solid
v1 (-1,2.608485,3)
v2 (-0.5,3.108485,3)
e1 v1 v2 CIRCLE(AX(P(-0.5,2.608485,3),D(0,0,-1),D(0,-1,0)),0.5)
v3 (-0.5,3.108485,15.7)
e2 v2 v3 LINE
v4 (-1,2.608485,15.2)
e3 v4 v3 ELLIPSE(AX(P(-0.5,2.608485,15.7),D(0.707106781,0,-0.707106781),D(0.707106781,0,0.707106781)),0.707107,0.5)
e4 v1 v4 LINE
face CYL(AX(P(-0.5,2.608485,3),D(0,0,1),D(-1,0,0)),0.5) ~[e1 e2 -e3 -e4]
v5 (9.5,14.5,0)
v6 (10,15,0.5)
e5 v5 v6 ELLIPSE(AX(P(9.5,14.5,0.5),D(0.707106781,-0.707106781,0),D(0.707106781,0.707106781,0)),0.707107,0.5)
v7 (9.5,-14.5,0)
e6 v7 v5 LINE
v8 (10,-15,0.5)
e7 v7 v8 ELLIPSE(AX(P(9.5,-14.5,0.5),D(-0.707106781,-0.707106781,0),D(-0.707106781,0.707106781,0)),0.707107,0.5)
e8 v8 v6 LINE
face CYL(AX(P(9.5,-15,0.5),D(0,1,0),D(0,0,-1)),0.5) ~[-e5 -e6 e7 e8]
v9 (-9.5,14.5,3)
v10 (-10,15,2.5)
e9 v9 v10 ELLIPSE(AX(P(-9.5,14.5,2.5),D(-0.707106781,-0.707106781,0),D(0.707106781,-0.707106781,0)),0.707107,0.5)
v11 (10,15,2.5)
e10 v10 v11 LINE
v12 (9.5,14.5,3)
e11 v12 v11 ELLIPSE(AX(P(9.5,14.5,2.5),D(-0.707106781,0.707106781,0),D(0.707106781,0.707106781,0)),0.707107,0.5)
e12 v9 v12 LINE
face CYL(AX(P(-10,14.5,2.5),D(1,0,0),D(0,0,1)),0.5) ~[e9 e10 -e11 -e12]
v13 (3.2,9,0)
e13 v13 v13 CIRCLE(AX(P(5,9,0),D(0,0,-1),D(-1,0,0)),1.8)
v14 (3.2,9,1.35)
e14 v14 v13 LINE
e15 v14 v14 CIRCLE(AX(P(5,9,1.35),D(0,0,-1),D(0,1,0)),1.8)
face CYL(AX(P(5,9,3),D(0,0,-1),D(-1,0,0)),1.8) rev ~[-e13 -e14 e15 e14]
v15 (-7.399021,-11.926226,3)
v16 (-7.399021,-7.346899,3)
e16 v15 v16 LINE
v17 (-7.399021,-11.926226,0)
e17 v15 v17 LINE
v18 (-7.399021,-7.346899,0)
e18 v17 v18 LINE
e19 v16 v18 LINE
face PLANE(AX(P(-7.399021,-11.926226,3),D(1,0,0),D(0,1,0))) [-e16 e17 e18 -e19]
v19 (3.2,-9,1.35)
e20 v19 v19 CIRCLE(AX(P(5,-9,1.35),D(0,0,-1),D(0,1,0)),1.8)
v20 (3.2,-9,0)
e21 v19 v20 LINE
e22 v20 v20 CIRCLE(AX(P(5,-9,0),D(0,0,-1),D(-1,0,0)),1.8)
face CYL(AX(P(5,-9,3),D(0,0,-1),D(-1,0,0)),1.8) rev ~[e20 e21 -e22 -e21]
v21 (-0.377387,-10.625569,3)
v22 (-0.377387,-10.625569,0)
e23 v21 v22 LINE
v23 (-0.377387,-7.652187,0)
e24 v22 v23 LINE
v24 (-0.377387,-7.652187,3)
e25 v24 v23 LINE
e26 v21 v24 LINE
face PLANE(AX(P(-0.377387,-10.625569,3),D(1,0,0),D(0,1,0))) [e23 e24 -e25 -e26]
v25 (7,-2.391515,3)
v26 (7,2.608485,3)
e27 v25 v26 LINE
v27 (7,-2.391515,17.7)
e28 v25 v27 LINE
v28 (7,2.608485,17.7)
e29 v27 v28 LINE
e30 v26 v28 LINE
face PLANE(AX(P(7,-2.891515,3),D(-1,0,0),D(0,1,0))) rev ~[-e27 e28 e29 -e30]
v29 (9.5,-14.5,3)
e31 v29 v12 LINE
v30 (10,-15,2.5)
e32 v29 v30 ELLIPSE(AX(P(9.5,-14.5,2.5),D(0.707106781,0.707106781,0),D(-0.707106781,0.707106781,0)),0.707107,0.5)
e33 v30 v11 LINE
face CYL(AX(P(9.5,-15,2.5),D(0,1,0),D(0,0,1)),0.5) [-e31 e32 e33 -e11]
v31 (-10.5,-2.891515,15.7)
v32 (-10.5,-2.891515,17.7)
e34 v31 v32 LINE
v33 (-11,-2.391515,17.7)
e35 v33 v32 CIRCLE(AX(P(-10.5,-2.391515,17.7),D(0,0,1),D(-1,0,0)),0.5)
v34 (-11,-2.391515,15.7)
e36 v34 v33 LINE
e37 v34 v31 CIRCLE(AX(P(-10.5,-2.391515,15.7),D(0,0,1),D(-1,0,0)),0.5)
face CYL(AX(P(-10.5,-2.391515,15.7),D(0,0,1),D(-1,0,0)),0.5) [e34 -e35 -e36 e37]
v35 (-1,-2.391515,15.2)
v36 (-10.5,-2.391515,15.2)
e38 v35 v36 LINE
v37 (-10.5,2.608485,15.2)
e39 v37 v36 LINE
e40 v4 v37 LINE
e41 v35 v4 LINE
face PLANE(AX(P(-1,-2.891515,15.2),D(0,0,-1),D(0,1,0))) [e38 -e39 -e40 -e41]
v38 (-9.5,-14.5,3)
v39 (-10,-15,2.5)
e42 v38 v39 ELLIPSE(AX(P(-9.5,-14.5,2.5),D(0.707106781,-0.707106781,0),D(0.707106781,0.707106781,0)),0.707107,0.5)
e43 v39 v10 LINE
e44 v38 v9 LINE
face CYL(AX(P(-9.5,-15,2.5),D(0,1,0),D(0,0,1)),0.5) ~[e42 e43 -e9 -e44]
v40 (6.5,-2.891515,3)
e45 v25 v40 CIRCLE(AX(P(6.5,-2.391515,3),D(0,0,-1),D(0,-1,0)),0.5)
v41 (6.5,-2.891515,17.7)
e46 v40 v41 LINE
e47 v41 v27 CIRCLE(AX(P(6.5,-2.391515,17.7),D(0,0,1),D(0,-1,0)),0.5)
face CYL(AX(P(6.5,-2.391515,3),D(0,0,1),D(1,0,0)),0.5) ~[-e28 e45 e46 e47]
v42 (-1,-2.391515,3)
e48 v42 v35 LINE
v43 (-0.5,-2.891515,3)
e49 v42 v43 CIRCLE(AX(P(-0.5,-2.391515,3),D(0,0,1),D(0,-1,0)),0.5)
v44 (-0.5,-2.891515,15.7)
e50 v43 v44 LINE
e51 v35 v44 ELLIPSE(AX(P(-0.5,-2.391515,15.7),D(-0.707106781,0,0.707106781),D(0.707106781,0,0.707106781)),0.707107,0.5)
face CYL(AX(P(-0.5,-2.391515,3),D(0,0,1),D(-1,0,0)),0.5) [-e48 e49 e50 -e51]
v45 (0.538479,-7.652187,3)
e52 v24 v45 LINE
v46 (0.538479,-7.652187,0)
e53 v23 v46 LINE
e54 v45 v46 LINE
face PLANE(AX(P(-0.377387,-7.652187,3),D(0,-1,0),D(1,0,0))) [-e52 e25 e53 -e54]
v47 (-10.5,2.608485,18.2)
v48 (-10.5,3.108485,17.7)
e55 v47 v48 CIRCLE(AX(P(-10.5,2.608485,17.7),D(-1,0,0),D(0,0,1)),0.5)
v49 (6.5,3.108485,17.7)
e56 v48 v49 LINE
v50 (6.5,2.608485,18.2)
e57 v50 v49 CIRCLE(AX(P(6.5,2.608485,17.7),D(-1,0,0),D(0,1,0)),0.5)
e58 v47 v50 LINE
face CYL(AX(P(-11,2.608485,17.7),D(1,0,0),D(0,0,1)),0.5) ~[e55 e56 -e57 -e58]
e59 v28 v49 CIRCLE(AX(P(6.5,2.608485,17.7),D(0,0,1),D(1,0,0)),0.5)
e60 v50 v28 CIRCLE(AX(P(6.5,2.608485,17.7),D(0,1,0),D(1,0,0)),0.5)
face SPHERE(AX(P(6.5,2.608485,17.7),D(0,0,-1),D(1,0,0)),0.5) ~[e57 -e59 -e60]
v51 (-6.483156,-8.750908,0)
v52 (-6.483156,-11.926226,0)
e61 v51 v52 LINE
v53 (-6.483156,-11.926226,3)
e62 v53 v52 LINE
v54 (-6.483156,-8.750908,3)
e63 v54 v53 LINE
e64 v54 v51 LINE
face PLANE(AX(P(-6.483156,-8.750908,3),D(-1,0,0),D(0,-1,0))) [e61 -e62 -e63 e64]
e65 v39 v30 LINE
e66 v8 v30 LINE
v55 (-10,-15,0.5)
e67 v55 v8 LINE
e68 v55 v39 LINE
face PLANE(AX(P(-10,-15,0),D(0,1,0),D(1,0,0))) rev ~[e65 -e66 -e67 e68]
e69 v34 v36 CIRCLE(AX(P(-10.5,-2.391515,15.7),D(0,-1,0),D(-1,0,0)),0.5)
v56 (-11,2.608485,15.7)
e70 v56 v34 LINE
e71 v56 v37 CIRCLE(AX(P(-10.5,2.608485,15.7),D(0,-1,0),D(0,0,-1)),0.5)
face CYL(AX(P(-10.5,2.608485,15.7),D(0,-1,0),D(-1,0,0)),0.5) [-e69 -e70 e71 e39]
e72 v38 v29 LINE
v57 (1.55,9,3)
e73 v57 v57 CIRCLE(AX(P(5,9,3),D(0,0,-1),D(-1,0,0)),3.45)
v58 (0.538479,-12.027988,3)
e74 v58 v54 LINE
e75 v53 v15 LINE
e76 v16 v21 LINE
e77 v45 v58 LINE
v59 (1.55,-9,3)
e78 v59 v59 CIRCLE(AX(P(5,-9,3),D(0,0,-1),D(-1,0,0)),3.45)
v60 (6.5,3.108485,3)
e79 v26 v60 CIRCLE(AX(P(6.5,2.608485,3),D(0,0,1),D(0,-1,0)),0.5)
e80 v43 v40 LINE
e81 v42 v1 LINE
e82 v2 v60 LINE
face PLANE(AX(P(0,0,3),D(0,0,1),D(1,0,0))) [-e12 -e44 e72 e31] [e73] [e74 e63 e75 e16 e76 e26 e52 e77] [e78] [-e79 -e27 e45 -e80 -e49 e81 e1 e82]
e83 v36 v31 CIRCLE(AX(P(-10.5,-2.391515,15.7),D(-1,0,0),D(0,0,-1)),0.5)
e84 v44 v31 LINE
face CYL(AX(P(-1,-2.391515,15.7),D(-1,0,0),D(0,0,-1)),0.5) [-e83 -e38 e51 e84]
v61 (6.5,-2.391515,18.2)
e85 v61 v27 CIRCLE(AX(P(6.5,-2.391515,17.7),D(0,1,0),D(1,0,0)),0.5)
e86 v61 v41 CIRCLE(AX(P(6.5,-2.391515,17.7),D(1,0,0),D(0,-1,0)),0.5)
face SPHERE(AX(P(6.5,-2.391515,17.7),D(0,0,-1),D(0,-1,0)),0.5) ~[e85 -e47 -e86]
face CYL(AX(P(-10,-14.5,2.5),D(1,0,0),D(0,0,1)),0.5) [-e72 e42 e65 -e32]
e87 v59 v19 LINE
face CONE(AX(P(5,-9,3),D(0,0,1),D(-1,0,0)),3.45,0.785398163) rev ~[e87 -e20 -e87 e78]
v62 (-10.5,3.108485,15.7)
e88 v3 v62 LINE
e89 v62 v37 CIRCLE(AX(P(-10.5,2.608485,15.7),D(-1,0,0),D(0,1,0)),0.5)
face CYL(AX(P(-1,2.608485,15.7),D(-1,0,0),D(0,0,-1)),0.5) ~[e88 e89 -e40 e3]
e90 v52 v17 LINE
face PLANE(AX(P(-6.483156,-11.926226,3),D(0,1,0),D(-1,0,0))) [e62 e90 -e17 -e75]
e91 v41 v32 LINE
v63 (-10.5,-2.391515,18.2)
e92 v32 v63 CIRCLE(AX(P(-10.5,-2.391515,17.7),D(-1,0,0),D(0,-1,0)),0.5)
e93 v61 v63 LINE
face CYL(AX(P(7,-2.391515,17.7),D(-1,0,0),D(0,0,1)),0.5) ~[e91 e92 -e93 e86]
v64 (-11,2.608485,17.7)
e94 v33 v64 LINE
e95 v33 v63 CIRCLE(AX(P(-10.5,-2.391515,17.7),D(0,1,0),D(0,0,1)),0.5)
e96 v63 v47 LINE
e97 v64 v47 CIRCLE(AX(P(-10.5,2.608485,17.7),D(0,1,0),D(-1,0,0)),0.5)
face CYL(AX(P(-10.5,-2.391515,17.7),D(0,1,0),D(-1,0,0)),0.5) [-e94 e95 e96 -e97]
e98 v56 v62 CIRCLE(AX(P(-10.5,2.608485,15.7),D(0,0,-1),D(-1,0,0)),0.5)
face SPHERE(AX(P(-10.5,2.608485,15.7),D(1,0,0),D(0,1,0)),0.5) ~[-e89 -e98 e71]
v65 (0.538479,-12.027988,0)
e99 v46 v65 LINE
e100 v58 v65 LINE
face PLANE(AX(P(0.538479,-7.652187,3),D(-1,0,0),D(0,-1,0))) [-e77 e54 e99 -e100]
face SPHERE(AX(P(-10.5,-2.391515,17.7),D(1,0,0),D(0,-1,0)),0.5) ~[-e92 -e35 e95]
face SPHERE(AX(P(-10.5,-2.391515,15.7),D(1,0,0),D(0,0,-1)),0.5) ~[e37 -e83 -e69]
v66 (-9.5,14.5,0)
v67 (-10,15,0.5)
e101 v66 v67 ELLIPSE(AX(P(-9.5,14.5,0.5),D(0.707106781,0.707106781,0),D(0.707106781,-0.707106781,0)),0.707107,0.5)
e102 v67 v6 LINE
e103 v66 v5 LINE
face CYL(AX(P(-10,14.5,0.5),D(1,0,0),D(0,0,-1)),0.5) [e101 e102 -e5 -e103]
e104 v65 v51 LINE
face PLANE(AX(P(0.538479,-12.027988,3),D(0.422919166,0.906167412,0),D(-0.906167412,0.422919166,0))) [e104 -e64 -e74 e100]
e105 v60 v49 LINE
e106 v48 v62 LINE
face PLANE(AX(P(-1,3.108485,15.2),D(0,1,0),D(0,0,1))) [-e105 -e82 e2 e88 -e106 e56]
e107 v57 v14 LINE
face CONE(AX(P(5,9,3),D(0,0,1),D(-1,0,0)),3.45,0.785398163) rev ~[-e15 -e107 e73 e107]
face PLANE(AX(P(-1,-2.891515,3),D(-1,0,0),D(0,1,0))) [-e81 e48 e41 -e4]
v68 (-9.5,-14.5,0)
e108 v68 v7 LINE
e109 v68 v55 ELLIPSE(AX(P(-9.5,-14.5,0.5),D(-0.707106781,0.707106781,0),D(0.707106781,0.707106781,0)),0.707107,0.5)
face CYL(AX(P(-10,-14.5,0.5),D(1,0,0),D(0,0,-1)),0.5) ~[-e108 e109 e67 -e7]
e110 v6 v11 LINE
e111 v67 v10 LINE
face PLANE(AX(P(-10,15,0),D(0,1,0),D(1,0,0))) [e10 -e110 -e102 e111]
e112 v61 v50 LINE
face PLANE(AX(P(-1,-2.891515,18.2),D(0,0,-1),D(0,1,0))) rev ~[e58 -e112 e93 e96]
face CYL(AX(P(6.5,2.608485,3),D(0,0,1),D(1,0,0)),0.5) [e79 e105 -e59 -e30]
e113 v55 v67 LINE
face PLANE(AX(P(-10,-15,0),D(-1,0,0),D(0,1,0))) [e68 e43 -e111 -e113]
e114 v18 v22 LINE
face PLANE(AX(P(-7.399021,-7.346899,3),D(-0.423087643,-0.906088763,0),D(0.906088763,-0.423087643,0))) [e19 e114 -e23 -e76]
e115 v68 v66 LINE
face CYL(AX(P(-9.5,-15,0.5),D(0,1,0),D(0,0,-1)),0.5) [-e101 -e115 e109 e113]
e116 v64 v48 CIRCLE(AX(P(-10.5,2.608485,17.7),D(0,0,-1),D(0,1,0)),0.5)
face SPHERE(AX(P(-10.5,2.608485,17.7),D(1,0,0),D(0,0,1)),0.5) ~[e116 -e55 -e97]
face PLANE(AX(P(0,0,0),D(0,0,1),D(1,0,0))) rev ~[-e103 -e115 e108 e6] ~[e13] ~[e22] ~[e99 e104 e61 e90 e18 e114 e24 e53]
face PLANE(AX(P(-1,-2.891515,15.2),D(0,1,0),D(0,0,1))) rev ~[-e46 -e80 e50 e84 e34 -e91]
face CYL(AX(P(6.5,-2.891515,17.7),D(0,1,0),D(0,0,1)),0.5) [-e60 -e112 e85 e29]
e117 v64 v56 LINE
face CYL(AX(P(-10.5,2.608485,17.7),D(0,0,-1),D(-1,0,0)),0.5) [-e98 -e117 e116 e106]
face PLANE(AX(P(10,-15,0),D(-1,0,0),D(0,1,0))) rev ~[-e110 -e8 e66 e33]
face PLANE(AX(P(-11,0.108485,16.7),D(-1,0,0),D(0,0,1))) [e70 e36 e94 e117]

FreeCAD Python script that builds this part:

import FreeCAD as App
import Part
import Sketcher
Q = App.Units.Quantity


def edges_at(feature, points):
    """Names of the edges that pass closest to the given points."""
    edges = feature.Shape.Edges
    near = lambda p: min(range(len(edges)), key=lambda i: edges[i].distToShape(Part.Vertex(*p))[0])
    return sorted({f"Edge{near(p) + 1}" for p in points})


def add_polygon(sketch, points):
    """Adds a closed chain of lines whose ends are joined by coincident constraints."""
    first, n = sketch.GeometryCount, len(points)
    for a, b in zip(points, points[1:] + points[:1]):
        sketch.addGeometry(Part.LineSegment(App.Vector(*a, 0), App.Vector(*b, 0)), False)
    for i in range(n):
        sketch.addConstraint(Sketcher.Constraint("Coincident", first + i, 2, first + (i + 1) % n, 1))

doc = App.newDocument("Part")
params = doc.addObject("Spreadsheet::Sheet", "Params")
for row, (alias, value) in enumerate([
    ("sketch1_width", "20 mm"),
    ("sketch1_height", "30 mm"),
    ("pad1_length", "3 mm"),
    ("sketch2_diameter", "3.6 mm"),
    ("hole_diameter", "3.6 mm"),
    ("hole_depth", "20 mm"),
    ("hole_csink_diameter", "6.9 mm"),
    ("sketch3_width", "8 mm"),
    ("sketch3_height", "6 mm"),
    ("pad2_length", "15.2 mm"),
    ("sketch4_width", "6 mm"),
    ("sketch4_height", "3 mm"),
    ("pad3_length", "10 mm"),
    ("fillet_radius", "0.5 mm"),
    ("fillet2_radius", "0.5 mm"),
], start=1):
    params.set(f"A{row}", alias)
    params.set(f"B{row}", "=" + value)
    params.setAlias(f"B{row}", alias)

body = doc.addObject("PartDesign::Body", "Body")

# Sketch on XY plane
sketch1 = body.newObject("Sketcher::SketchObject", "Sketch")
sketch1.AttachmentSupport = (doc.getObject("XY_Plane"), [""])
sketch1.MapMode = "FlatFace"
add_polygon(sketch1, [(-10, 15), (-10, -15), (10, -15), (10, 15)])  # lines 0-3
sketch1.addConstraint(Sketcher.Constraint("Vertical", 0))
sketch1.addConstraint(Sketcher.Constraint("Horizontal", 1))
sketch1.addConstraint(Sketcher.Constraint("Vertical", 2))
sketch1.addConstraint(Sketcher.Constraint("Horizontal", 3))
sketch1.addConstraint(Sketcher.Constraint("Symmetric", 0, 2, 2, 2, -1, 1))
sketch1.addConstraint(Sketcher.Constraint("DistanceX", 1, 1, 1, 2, Q("20 mm")))
sketch1.addConstraint(Sketcher.Constraint("DistanceY", 0, 2, 0, 1, Q("30 mm")))
sketch1.setExpression("Constraints[9]", "Params.sketch1_width")
sketch1.setExpression("Constraints[10]", "Params.sketch1_height")
pad1 = body.newObject("PartDesign::Pad", "Pad")
pad1.Profile = sketch1
pad1.setExpression("Length", "Params.pad1_length")

# Sketch on XY plane
sketch2 = body.newObject("Sketcher::SketchObject", "Sketch001")
sketch2.AttachmentSupport = (doc.getObject("XY_Plane"), [""])
sketch2.MapMode = "FlatFace"
sketch2.AttachmentOffset = App.Placement(App.Vector(0, 0, 3), App.Rotation())
sketch2.addGeometry(Part.Circle(App.Vector(5, 9, 0), App.Vector(0, 0, 1), 1.8), False)
sketch2.addGeometry(Part.Circle(App.Vector(5, -9, 0), App.Vector(0, 0, 1), 1.8), False)
sketch2.addConstraint(Sketcher.Constraint("Equal", 0, 1))
sketch2.addConstraint(Sketcher.Constraint("Symmetric", 0, 3, 1, 3, -1))
sketch2.addConstraint(Sketcher.Constraint("Diameter", 0, Q("3.6 mm")))
sketch2.addConstraint(Sketcher.Constraint("DistanceX", -1, 1, 0, 3, Q("5 mm")))
sketch2.addConstraint(Sketcher.Constraint("DistanceY", -1, 1, 0, 3, Q("9 mm")))
sketch2.setExpression("Constraints[2]", "Params.sketch2_diameter")
doc.recompute()
hole = body.newObject("PartDesign::Hole", "Hole")
hole.Profile = sketch2
hole.ThreadType = "None"
hole.setExpression("Diameter", "Params.hole_diameter")
hole.DepthType = "Dimension"
hole.setExpression("Depth", "Params.hole_depth")
hole.DrillPoint = "Angled"
hole.DrillPointAngle = 118
hole.HoleCutType = "Countersink"
hole.setExpression("HoleCutDiameter", "Params.hole_csink_diameter")
hole.HoleCutCountersinkAngle = 90

# Sketch on XY plane
sketch3 = body.newObject("Sketcher::SketchObject", "Sketch002")
sketch3.AttachmentSupport = (doc.getObject("XY_Plane"), [""])
sketch3.MapMode = "FlatFace"
sketch3.AttachmentOffset = App.Placement(App.Vector(0, 0, 3), App.Rotation())
add_polygon(sketch3, [(-1, 3.108485), (-1, -2.891515), (7, -2.891515), (7, 3.108485)])  # lines 0-3
sketch3.addConstraint(Sketcher.Constraint("Vertical", 0))
sketch3.addConstraint(Sketcher.Constraint("Horizontal", 1))
sketch3.addConstraint(Sketcher.Constraint("Vertical", 2))
sketch3.addConstraint(Sketcher.Constraint("Horizontal", 3))
sketch3.addConstraint(Sketcher.Constraint("DistanceX", 1, 1, 1, 2, Q("8 mm")))
sketch3.addConstraint(Sketcher.Constraint("DistanceY", 0, 2, 0, 1, Q("6 mm")))
sketch3.addConstraint(Sketcher.Constraint("DistanceX", 0, 2, -1, 1, Q("1 mm")))
sketch3.addConstraint(Sketcher.Constraint("DistanceY", 0, 2, -1, 1, Q("2.891515 mm")))
sketch3.setExpression("Constraints[8]", "Params.sketch3_width")
sketch3.setExpression("Constraints[9]", "Params.sketch3_height")
pad2 = body.newObject("PartDesign::Pad", "Pad001")
pad2.Profile = sketch3
pad2.setExpression("Length", "Params.pad2_length")

# Sketch on YZ plane
sketch4 = body.newObject("Sketcher::SketchObject", "Sketch003")
sketch4.AttachmentSupport = (doc.getObject("YZ_Plane"), [""])
sketch4.MapMode = "FlatFace"
sketch4.AttachmentOffset = App.Placement(App.Vector(0, 0, -1), App.Rotation())
add_polygon(sketch4, [(3.108485, 15.2), (-2.891515, 15.2), (-2.891515, 18.2), (3.108485, 18.2)])  # lines 0-3
sketch4.addConstraint(Sketcher.Constraint("Horizontal", 0))
sketch4.addConstraint(Sketcher.Constraint("Vertical", 1))
sketch4.addConstraint(Sketcher.Constraint("Horizontal", 2))
sketch4.addConstraint(Sketcher.Constraint("Vertical", 3))
sketch4.addConstraint(Sketcher.Constraint("DistanceX", 0, 2, 0, 1, Q("6 mm")))
sketch4.addConstraint(Sketcher.Constraint("DistanceY", 1, 1, 1, 2, Q("3 mm")))
sketch4.addConstraint(Sketcher.Constraint("DistanceY", -1, 1, 0, 2, Q("15.2 mm")))
sketch4.addConstraint(Sketcher.Constraint("DistanceX", 0, 2, -1, 1, Q("2.891515 mm")))
sketch4.setExpression("Constraints[8]", "Params.sketch4_width")
sketch4.setExpression("Constraints[9]", "Params.sketch4_height")
pad3 = body.newObject("PartDesign::Pad", "Pad002")
pad3.Profile = sketch4
pad3.setExpression("Length", "Params.pad3_length")
pad3.Reversed = True
doc.recompute()

fillet = body.newObject("PartDesign::Fillet", "Fillet")
fillet.Base = (pad3, edges_at(pad3, [
    (10, 0, 3),
    (0, 15, 3),
    (7, -2.892, 10.6),
    (7, 3.108, 10.6),
    (-2, -2.892, 18.2),
    (7, 0.108, 18.2),
    (-2, 3.108, 18.2),
    (-1, 3.108, 9.1),
    (-10, 0, 3),
    (-1, -2.892, 9.1),
    (-6, 3.108, 15.2),
    (-6, -2.892, 15.2),
    (0, 15, 0),
    (10, 0, 0),
    (0, -15, 0),
    (-10, 0, 0),
    (0, -15, 3),
]))
fillet.setExpression("Radius", "Params.fillet_radius")

# Sketch on XY plane
sketch5 = body.newObject("Sketcher::SketchObject", "Sketch004")
sketch5.AttachmentSupport = (doc.getObject("XY_Plane"), [""])
sketch5.MapMode = "FlatFace"
sketch5.AttachmentOffset = App.Placement(App.Vector(0, 0, 3), App.Rotation())
add_polygon(sketch5, [(0.538479, -7.652187), (-0.377387, -7.652187), (-0.377387, -10.625569), (-7.399021, -7.346899), (-7.399021, -11.926226), (-6.483156, -11.926226), (-6.483156, -8.750908), (0.538479, -12.027988)])  # lines 0-7
sketch5.addConstraint(Sketcher.Constraint("Horizontal", 0))
sketch5.addConstraint(Sketcher.Constraint("Vertical", 1))
sketch5.addConstraint(Sketcher.Constraint("Vertical", 3))
sketch5.addConstraint(Sketcher.Constraint("Horizontal", 4))
sketch5.addConstraint(Sketcher.Constraint("Vertical", 5))
sketch5.addConstraint(Sketcher.Constraint("Vertical", 7))
sketch5.addConstraint(Sketcher.Constraint("Equal", 0, 4))
sketch5.addConstraint(Sketcher.Constraint("DistanceY", 7, 1, 7, 2, Q("4.375801 mm")))
sketch5.addConstraint(Sketcher.Constraint("DistanceY", 5, 1, 5, 2, Q("3.175318 mm")))
sketch5.addConstraint(Sketcher.Constraint("DistanceY", 2, 2, -1, 1, Q("7.346899 mm")))
sketch5.addConstraint(Sketcher.Constraint("DistanceX", 3, 2, 6, 2, Q("7.9375 mm")))
sketch5.addConstraint(Sketcher.Constraint("Distance", 2, Q("7.749389 mm")))
sketch5.addConstraint(Sketcher.Constraint("DistanceX", 0, 2, 0, 1, Q("0.915865 mm")))
sketch5.addConstraint(Sketcher.Constraint("DistanceY", 1, 2, 1, 1, Q("2.973382 mm")))
sketch5.addConstraint(Sketcher.Constraint("DistanceY", 3, 2, 3, 1, Q("4.579327 mm")))
sketch5.addConstraint(Sketcher.Constraint("DistanceX", 2, 2, -1, 1, Q("7.399021 mm")))
pocket1 = body.newObject("PartDesign::Pocket", "Pocket")
pocket1.Profile = sketch5
pocket1.Type = "ThroughAll"
doc.recompute()

fillet2 = body.newObject("PartDesign::Fillet", "Fillet001")
fillet2.Base = (pocket1, edges_at(pocket1, [
    (-11, -2.892, 16.7),
    (-11, 0.108, 15.2),
    (-11, 0.108, 18.2),
    (-11, 3.108, 16.7),
    (-11, 2.962, 15.346),
    (-11, 2.962, 18.054),
    (-11, -2.745, 18.054),
    (-11, -2.745, 15.346),
]))
fillet2.setExpression("Radius", "Params.fillet2_radius")

doc.recompute()
